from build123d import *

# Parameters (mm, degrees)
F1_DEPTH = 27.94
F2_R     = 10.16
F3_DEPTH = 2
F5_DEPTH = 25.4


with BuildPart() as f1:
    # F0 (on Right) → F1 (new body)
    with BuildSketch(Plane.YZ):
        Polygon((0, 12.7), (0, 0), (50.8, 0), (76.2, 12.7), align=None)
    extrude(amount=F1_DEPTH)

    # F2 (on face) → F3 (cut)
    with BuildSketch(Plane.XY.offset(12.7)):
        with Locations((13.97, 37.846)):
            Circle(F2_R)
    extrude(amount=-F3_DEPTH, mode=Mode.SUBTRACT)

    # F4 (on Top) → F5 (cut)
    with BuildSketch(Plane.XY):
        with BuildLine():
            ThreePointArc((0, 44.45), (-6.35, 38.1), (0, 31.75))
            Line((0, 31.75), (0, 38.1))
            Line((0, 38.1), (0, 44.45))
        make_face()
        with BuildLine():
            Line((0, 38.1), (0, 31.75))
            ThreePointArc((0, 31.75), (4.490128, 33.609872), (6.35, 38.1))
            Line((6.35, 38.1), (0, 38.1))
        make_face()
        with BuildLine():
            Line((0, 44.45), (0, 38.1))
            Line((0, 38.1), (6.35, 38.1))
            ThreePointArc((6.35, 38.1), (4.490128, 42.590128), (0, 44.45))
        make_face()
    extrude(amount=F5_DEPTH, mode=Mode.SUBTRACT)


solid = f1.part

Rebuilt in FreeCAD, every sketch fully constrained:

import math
import FreeCAD as App
import Part
import Sketcher
from FreeCAD import Vector
Q = App.Units.Quantity

doc = App.newDocument("Part")
body = doc.addObject("PartDesign::Body", "Body")

# Sketch on YZ plane
sketch1 = body.newObject("Sketcher::SketchObject", "Sketch")
sketch1.AttachmentSupport = (doc.getObject("YZ_Plane"), [""])
sketch1.MapMode = "FlatFace"
sketch1.addGeometry(Part.LineSegment(Vector(0, 13, 0), Vector(0, 0, 0)), False)
sketch1.addGeometry(Part.LineSegment(Vector(0, 0, 0), Vector(51, 0, 0)), False)
sketch1.addGeometry(Part.LineSegment(Vector(51, 0, 0), Vector(76, 13, 0)), False)
sketch1.addGeometry(Part.LineSegment(Vector(76, 13, 0), Vector(0, 13, 0)), False)
sketch1.addConstraint(Sketcher.Constraint("Coincident", 0, 2, 1, 1))
sketch1.addConstraint(Sketcher.Constraint("Coincident", 1, 2, 2, 1))
sketch1.addConstraint(Sketcher.Constraint("Coincident", 2, 2, 3, 1))
sketch1.addConstraint(Sketcher.Constraint("Coincident", 3, 2, 0, 1))
sketch1.addConstraint(Sketcher.Constraint("Vertical", 0))
sketch1.addConstraint(Sketcher.Constraint("Horizontal", 1))
sketch1.addConstraint(Sketcher.Constraint("Horizontal", 3))
sketch1.addConstraint(Sketcher.Constraint("Coincident", 0, 2, -1, 1))
sketch1.addConstraint(Sketcher.Constraint("DistanceX", 1, 1, 1, 2, Q("2 in")))
sketch1.addConstraint(Sketcher.Constraint("DistanceX", 3, 2, 3, 1, Q("3 in")))
sketch1.addConstraint(Sketcher.Constraint("DistanceY", 0, 2, 0, 1, Q("0.5 in")))
pad1 = body.newObject("PartDesign::Pad", "Pad")
pad1.Profile = sketch1
pad1.Length = Q("1.1 in")

# Sketch on XY plane
sketch2 = body.newObject("Sketcher::SketchObject", "Sketch001")
sketch2.AttachmentSupport = (doc.getObject("XY_Plane"), [""])
sketch2.MapMode = "FlatFace"
sketch2.AttachmentOffset = App.Placement(Vector(0, 0, 0.5 * 25.4), App.Rotation())
sketch2.addGeometry(Part.Circle(Vector(14, 38, 0), Vector(0, 0, 1), 10), False)
sketch2.addConstraint(Sketcher.Constraint("Diameter", 0, Q("0.8 in")))
sketch2.addConstraint(Sketcher.Constraint("DistanceX", -1, 1, 0, 3, Q("0.55 in")))
sketch2.addConstraint(Sketcher.Constraint("DistanceY", -1, 1, 0, 3, Q("1.49 in")))
pocket1 = body.newObject("PartDesign::Pocket", "Pocket")
pocket1.Profile = sketch2
pocket1.Length = 2

# Sketch on XY plane
sketch3 = body.newObject("Sketcher::SketchObject", "Sketch002")
sketch3.AttachmentSupport = (doc.getObject("XY_Plane"), [""])
sketch3.MapMode = "FlatFace"
sketch3.addGeometry(Part.ArcOfCircle(Part.Circle(Vector(0, 38, 0), Vector(0, 0, 1), 6), math.radians(90), math.radians(270)), False)
sketch3.addGeometry(Part.ArcOfCircle(Part.Circle(Vector(0, 38, 0), Vector(0, 0, 1), 6), math.radians(-90), math.radians(0)), False)
sketch3.addGeometry(Part.ArcOfCircle(Part.Circle(Vector(0, 38, 0), Vector(0, 0, 1), 6), math.radians(0), math.radians(90)), False)
sketch3.addConstraint(Sketcher.Constraint("Tangent", 0, 2, 1, 1))
sketch3.addConstraint(Sketcher.Constraint("Tangent", 1, 2, 2, 1))
sketch3.addConstraint(Sketcher.Constraint("Tangent", 2, 2, 0, 1))
sketch3.addConstraint(Sketcher.Constraint("PointOnObject", 0, 3, -2))
sketch3.addConstraint(Sketcher.Constraint("PointOnObject", 0, 2, -2))
sketch3.addConstraint(Sketcher.Constraint("PointOnObject", 2, 2, -2))
sketch3.addConstraint(Sketcher.Constraint("Horizontal", 2, 3, 1, 2))
sketch3.addConstraint(Sketcher.Constraint("Radius", 0, Q("0.25 in")))
sketch3.addConstraint(Sketcher.Constraint("DistanceY", -1, 1, 0, 3, Q("1.5 in")))
pocket2 = body.newObject("PartDesign::Pocket", "Pocket001")
pocket2.Profile = sketch3
pocket2.Length = Q("1 in")
pocket2.Reversed = True

doc.recompute()
